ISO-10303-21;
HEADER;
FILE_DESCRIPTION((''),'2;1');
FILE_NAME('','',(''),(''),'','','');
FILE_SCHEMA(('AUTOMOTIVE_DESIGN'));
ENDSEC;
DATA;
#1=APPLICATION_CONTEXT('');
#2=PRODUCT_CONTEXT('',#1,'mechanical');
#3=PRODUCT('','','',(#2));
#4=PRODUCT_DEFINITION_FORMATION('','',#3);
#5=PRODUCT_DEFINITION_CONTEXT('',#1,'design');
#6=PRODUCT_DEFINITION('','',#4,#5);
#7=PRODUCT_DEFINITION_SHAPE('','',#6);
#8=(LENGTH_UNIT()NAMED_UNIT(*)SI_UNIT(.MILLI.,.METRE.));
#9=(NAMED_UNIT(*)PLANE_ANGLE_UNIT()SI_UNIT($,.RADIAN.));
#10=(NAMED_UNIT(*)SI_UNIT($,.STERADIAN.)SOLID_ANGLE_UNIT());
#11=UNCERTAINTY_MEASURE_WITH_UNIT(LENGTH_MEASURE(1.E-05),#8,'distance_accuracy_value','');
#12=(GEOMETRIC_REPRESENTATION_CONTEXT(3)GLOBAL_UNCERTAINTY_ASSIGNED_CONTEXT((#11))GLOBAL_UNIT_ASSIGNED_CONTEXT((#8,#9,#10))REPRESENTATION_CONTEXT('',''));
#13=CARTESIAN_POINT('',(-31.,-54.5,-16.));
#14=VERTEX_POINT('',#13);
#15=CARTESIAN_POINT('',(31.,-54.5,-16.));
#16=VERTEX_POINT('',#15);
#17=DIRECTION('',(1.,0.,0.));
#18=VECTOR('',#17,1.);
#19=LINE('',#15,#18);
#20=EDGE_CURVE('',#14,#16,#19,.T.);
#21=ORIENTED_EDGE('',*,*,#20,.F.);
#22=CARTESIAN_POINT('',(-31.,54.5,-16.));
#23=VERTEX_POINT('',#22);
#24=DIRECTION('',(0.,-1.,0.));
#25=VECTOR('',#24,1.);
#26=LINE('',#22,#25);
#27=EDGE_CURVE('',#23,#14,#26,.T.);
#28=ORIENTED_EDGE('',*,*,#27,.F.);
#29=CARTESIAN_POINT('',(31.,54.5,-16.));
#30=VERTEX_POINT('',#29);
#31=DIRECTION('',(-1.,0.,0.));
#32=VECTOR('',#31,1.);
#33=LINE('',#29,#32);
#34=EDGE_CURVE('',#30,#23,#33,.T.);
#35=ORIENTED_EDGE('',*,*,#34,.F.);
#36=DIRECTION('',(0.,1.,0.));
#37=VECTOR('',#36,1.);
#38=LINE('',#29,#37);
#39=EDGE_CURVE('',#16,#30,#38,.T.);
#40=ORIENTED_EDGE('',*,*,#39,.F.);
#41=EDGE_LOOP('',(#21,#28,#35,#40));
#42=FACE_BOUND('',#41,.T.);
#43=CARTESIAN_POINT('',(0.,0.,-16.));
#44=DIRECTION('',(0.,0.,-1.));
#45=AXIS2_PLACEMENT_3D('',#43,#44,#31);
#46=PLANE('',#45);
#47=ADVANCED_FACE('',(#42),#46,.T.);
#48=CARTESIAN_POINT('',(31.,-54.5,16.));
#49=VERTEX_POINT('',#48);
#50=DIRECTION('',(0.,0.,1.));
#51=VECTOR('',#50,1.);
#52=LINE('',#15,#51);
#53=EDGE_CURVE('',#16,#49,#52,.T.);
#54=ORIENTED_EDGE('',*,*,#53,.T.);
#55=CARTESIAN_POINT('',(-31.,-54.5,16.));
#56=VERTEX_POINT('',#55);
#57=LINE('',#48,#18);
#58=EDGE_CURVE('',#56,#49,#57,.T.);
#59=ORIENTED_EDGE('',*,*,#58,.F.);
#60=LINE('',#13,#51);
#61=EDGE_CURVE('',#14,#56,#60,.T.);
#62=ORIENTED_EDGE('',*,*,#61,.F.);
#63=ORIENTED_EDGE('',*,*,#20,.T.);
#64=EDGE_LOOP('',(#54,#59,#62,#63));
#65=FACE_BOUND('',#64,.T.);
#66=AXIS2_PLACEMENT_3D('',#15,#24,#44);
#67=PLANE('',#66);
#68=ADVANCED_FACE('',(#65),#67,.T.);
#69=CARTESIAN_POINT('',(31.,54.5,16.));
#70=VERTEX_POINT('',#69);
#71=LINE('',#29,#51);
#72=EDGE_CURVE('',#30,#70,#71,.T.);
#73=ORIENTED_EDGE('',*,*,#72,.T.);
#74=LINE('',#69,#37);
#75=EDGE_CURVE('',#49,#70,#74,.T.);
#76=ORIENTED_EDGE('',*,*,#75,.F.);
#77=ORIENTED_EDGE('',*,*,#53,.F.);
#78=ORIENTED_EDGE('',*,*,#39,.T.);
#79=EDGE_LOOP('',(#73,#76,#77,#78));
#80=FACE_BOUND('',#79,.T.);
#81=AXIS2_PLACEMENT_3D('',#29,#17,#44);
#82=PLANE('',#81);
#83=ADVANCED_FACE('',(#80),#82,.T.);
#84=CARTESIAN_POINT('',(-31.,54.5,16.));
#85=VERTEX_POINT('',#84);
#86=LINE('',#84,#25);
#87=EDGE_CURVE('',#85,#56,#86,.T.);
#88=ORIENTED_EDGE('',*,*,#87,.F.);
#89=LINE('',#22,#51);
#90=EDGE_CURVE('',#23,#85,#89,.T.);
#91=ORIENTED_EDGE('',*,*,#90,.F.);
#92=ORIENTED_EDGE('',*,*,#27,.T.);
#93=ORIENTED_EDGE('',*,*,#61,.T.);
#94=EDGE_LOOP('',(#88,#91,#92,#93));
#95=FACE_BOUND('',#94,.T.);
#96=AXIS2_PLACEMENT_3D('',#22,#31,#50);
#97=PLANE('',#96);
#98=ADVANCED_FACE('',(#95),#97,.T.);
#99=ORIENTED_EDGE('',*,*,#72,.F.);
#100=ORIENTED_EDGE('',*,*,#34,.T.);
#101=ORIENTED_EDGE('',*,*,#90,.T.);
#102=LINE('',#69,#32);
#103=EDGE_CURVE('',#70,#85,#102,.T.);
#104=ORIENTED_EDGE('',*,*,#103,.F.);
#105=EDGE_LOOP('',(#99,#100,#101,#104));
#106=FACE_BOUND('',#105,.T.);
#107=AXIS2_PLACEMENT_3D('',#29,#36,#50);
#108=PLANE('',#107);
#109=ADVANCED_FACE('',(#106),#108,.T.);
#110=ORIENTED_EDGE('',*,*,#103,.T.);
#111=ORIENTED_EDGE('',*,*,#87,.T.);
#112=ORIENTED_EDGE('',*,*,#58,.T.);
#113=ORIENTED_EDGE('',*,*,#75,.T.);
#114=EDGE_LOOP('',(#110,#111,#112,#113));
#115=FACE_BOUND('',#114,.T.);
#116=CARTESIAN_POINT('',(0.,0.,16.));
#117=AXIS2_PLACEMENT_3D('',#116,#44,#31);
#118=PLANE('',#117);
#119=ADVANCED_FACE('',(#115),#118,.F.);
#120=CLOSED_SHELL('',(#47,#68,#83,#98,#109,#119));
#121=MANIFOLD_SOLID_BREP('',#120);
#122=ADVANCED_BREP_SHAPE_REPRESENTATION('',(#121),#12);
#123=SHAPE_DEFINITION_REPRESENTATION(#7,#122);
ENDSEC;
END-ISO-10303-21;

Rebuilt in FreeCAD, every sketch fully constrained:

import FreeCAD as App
import Part
import Sketcher

V = App.Vector


def add_polygon(sketch, points):
    """Adds a closed chain of lines whose ends are joined by coincident constraints."""
    first, n = sketch.GeometryCount, len(points)
    for a, b in zip(points, points[1:] + points[:1]):
        sketch.addGeometry(Part.LineSegment(App.Vector(*a, 0), App.Vector(*b, 0)), False)
    for i in range(n):
        sketch.addConstraint(Sketcher.Constraint("Coincident", first + i, 2, first + (i + 1) % n, 1))

doc = App.newDocument("Part")
params = doc.addObject("Spreadsheet::Sheet", "Params")
for row, (alias, value) in enumerate([
    ("sketch1_width", "62 mm"),
    ("sketch1_height", "109 mm"),
    ("pad1_length", "16 mm"),
    ("pad1_length2", "16 mm"),
], start=1):
    params.set(f"A{row}", alias)
    params.set(f"B{row}", "=" + value)
    params.setAlias(f"B{row}", alias)

body = doc.addObject("PartDesign::Body", "Body")

# Sketch on XY plane
sketch1 = body.newObject("Sketcher::SketchObject", "Sketch")
sketch1.AttachmentSupport = (doc.getObject("XY_Plane"), [""])
sketch1.MapMode = "FlatFace"
add_polygon(sketch1, [(-31, 54), (-31, -54), (31, -54), (31, 54)])  # lines 0-3
sketch1.addConstraint(Sketcher.Constraint("Vertical", 0))
sketch1.addConstraint(Sketcher.Constraint("Horizontal", 1))
sketch1.addConstraint(Sketcher.Constraint("Vertical", 2))
sketch1.addConstraint(Sketcher.Constraint("Horizontal", 3))
sketch1.addConstraint(Sketcher.Constraint("Symmetric", 0, 2, 2, 2, -1, 1))
sketch1.addConstraint(Sketcher.Constraint("DistanceX", 1, 1, 1, 2, 62.0))
sketch1.addConstraint(Sketcher.Constraint("DistanceY", 0, 2, 0, 1, 109.0))
sketch1.setExpression("Constraints[9]", "Params.sketch1_width")
sketch1.setExpression("Constraints[10]", "Params.sketch1_height")
pad1 = body.newObject("PartDesign::Pad", "Pad")
pad1.Profile = sketch1
pad1.Type = "TwoLengths"
pad1.setExpression("Length", "Params.pad1_length")
pad1.setExpression("Length2", "Params.pad1_length2")

doc.recompute()
